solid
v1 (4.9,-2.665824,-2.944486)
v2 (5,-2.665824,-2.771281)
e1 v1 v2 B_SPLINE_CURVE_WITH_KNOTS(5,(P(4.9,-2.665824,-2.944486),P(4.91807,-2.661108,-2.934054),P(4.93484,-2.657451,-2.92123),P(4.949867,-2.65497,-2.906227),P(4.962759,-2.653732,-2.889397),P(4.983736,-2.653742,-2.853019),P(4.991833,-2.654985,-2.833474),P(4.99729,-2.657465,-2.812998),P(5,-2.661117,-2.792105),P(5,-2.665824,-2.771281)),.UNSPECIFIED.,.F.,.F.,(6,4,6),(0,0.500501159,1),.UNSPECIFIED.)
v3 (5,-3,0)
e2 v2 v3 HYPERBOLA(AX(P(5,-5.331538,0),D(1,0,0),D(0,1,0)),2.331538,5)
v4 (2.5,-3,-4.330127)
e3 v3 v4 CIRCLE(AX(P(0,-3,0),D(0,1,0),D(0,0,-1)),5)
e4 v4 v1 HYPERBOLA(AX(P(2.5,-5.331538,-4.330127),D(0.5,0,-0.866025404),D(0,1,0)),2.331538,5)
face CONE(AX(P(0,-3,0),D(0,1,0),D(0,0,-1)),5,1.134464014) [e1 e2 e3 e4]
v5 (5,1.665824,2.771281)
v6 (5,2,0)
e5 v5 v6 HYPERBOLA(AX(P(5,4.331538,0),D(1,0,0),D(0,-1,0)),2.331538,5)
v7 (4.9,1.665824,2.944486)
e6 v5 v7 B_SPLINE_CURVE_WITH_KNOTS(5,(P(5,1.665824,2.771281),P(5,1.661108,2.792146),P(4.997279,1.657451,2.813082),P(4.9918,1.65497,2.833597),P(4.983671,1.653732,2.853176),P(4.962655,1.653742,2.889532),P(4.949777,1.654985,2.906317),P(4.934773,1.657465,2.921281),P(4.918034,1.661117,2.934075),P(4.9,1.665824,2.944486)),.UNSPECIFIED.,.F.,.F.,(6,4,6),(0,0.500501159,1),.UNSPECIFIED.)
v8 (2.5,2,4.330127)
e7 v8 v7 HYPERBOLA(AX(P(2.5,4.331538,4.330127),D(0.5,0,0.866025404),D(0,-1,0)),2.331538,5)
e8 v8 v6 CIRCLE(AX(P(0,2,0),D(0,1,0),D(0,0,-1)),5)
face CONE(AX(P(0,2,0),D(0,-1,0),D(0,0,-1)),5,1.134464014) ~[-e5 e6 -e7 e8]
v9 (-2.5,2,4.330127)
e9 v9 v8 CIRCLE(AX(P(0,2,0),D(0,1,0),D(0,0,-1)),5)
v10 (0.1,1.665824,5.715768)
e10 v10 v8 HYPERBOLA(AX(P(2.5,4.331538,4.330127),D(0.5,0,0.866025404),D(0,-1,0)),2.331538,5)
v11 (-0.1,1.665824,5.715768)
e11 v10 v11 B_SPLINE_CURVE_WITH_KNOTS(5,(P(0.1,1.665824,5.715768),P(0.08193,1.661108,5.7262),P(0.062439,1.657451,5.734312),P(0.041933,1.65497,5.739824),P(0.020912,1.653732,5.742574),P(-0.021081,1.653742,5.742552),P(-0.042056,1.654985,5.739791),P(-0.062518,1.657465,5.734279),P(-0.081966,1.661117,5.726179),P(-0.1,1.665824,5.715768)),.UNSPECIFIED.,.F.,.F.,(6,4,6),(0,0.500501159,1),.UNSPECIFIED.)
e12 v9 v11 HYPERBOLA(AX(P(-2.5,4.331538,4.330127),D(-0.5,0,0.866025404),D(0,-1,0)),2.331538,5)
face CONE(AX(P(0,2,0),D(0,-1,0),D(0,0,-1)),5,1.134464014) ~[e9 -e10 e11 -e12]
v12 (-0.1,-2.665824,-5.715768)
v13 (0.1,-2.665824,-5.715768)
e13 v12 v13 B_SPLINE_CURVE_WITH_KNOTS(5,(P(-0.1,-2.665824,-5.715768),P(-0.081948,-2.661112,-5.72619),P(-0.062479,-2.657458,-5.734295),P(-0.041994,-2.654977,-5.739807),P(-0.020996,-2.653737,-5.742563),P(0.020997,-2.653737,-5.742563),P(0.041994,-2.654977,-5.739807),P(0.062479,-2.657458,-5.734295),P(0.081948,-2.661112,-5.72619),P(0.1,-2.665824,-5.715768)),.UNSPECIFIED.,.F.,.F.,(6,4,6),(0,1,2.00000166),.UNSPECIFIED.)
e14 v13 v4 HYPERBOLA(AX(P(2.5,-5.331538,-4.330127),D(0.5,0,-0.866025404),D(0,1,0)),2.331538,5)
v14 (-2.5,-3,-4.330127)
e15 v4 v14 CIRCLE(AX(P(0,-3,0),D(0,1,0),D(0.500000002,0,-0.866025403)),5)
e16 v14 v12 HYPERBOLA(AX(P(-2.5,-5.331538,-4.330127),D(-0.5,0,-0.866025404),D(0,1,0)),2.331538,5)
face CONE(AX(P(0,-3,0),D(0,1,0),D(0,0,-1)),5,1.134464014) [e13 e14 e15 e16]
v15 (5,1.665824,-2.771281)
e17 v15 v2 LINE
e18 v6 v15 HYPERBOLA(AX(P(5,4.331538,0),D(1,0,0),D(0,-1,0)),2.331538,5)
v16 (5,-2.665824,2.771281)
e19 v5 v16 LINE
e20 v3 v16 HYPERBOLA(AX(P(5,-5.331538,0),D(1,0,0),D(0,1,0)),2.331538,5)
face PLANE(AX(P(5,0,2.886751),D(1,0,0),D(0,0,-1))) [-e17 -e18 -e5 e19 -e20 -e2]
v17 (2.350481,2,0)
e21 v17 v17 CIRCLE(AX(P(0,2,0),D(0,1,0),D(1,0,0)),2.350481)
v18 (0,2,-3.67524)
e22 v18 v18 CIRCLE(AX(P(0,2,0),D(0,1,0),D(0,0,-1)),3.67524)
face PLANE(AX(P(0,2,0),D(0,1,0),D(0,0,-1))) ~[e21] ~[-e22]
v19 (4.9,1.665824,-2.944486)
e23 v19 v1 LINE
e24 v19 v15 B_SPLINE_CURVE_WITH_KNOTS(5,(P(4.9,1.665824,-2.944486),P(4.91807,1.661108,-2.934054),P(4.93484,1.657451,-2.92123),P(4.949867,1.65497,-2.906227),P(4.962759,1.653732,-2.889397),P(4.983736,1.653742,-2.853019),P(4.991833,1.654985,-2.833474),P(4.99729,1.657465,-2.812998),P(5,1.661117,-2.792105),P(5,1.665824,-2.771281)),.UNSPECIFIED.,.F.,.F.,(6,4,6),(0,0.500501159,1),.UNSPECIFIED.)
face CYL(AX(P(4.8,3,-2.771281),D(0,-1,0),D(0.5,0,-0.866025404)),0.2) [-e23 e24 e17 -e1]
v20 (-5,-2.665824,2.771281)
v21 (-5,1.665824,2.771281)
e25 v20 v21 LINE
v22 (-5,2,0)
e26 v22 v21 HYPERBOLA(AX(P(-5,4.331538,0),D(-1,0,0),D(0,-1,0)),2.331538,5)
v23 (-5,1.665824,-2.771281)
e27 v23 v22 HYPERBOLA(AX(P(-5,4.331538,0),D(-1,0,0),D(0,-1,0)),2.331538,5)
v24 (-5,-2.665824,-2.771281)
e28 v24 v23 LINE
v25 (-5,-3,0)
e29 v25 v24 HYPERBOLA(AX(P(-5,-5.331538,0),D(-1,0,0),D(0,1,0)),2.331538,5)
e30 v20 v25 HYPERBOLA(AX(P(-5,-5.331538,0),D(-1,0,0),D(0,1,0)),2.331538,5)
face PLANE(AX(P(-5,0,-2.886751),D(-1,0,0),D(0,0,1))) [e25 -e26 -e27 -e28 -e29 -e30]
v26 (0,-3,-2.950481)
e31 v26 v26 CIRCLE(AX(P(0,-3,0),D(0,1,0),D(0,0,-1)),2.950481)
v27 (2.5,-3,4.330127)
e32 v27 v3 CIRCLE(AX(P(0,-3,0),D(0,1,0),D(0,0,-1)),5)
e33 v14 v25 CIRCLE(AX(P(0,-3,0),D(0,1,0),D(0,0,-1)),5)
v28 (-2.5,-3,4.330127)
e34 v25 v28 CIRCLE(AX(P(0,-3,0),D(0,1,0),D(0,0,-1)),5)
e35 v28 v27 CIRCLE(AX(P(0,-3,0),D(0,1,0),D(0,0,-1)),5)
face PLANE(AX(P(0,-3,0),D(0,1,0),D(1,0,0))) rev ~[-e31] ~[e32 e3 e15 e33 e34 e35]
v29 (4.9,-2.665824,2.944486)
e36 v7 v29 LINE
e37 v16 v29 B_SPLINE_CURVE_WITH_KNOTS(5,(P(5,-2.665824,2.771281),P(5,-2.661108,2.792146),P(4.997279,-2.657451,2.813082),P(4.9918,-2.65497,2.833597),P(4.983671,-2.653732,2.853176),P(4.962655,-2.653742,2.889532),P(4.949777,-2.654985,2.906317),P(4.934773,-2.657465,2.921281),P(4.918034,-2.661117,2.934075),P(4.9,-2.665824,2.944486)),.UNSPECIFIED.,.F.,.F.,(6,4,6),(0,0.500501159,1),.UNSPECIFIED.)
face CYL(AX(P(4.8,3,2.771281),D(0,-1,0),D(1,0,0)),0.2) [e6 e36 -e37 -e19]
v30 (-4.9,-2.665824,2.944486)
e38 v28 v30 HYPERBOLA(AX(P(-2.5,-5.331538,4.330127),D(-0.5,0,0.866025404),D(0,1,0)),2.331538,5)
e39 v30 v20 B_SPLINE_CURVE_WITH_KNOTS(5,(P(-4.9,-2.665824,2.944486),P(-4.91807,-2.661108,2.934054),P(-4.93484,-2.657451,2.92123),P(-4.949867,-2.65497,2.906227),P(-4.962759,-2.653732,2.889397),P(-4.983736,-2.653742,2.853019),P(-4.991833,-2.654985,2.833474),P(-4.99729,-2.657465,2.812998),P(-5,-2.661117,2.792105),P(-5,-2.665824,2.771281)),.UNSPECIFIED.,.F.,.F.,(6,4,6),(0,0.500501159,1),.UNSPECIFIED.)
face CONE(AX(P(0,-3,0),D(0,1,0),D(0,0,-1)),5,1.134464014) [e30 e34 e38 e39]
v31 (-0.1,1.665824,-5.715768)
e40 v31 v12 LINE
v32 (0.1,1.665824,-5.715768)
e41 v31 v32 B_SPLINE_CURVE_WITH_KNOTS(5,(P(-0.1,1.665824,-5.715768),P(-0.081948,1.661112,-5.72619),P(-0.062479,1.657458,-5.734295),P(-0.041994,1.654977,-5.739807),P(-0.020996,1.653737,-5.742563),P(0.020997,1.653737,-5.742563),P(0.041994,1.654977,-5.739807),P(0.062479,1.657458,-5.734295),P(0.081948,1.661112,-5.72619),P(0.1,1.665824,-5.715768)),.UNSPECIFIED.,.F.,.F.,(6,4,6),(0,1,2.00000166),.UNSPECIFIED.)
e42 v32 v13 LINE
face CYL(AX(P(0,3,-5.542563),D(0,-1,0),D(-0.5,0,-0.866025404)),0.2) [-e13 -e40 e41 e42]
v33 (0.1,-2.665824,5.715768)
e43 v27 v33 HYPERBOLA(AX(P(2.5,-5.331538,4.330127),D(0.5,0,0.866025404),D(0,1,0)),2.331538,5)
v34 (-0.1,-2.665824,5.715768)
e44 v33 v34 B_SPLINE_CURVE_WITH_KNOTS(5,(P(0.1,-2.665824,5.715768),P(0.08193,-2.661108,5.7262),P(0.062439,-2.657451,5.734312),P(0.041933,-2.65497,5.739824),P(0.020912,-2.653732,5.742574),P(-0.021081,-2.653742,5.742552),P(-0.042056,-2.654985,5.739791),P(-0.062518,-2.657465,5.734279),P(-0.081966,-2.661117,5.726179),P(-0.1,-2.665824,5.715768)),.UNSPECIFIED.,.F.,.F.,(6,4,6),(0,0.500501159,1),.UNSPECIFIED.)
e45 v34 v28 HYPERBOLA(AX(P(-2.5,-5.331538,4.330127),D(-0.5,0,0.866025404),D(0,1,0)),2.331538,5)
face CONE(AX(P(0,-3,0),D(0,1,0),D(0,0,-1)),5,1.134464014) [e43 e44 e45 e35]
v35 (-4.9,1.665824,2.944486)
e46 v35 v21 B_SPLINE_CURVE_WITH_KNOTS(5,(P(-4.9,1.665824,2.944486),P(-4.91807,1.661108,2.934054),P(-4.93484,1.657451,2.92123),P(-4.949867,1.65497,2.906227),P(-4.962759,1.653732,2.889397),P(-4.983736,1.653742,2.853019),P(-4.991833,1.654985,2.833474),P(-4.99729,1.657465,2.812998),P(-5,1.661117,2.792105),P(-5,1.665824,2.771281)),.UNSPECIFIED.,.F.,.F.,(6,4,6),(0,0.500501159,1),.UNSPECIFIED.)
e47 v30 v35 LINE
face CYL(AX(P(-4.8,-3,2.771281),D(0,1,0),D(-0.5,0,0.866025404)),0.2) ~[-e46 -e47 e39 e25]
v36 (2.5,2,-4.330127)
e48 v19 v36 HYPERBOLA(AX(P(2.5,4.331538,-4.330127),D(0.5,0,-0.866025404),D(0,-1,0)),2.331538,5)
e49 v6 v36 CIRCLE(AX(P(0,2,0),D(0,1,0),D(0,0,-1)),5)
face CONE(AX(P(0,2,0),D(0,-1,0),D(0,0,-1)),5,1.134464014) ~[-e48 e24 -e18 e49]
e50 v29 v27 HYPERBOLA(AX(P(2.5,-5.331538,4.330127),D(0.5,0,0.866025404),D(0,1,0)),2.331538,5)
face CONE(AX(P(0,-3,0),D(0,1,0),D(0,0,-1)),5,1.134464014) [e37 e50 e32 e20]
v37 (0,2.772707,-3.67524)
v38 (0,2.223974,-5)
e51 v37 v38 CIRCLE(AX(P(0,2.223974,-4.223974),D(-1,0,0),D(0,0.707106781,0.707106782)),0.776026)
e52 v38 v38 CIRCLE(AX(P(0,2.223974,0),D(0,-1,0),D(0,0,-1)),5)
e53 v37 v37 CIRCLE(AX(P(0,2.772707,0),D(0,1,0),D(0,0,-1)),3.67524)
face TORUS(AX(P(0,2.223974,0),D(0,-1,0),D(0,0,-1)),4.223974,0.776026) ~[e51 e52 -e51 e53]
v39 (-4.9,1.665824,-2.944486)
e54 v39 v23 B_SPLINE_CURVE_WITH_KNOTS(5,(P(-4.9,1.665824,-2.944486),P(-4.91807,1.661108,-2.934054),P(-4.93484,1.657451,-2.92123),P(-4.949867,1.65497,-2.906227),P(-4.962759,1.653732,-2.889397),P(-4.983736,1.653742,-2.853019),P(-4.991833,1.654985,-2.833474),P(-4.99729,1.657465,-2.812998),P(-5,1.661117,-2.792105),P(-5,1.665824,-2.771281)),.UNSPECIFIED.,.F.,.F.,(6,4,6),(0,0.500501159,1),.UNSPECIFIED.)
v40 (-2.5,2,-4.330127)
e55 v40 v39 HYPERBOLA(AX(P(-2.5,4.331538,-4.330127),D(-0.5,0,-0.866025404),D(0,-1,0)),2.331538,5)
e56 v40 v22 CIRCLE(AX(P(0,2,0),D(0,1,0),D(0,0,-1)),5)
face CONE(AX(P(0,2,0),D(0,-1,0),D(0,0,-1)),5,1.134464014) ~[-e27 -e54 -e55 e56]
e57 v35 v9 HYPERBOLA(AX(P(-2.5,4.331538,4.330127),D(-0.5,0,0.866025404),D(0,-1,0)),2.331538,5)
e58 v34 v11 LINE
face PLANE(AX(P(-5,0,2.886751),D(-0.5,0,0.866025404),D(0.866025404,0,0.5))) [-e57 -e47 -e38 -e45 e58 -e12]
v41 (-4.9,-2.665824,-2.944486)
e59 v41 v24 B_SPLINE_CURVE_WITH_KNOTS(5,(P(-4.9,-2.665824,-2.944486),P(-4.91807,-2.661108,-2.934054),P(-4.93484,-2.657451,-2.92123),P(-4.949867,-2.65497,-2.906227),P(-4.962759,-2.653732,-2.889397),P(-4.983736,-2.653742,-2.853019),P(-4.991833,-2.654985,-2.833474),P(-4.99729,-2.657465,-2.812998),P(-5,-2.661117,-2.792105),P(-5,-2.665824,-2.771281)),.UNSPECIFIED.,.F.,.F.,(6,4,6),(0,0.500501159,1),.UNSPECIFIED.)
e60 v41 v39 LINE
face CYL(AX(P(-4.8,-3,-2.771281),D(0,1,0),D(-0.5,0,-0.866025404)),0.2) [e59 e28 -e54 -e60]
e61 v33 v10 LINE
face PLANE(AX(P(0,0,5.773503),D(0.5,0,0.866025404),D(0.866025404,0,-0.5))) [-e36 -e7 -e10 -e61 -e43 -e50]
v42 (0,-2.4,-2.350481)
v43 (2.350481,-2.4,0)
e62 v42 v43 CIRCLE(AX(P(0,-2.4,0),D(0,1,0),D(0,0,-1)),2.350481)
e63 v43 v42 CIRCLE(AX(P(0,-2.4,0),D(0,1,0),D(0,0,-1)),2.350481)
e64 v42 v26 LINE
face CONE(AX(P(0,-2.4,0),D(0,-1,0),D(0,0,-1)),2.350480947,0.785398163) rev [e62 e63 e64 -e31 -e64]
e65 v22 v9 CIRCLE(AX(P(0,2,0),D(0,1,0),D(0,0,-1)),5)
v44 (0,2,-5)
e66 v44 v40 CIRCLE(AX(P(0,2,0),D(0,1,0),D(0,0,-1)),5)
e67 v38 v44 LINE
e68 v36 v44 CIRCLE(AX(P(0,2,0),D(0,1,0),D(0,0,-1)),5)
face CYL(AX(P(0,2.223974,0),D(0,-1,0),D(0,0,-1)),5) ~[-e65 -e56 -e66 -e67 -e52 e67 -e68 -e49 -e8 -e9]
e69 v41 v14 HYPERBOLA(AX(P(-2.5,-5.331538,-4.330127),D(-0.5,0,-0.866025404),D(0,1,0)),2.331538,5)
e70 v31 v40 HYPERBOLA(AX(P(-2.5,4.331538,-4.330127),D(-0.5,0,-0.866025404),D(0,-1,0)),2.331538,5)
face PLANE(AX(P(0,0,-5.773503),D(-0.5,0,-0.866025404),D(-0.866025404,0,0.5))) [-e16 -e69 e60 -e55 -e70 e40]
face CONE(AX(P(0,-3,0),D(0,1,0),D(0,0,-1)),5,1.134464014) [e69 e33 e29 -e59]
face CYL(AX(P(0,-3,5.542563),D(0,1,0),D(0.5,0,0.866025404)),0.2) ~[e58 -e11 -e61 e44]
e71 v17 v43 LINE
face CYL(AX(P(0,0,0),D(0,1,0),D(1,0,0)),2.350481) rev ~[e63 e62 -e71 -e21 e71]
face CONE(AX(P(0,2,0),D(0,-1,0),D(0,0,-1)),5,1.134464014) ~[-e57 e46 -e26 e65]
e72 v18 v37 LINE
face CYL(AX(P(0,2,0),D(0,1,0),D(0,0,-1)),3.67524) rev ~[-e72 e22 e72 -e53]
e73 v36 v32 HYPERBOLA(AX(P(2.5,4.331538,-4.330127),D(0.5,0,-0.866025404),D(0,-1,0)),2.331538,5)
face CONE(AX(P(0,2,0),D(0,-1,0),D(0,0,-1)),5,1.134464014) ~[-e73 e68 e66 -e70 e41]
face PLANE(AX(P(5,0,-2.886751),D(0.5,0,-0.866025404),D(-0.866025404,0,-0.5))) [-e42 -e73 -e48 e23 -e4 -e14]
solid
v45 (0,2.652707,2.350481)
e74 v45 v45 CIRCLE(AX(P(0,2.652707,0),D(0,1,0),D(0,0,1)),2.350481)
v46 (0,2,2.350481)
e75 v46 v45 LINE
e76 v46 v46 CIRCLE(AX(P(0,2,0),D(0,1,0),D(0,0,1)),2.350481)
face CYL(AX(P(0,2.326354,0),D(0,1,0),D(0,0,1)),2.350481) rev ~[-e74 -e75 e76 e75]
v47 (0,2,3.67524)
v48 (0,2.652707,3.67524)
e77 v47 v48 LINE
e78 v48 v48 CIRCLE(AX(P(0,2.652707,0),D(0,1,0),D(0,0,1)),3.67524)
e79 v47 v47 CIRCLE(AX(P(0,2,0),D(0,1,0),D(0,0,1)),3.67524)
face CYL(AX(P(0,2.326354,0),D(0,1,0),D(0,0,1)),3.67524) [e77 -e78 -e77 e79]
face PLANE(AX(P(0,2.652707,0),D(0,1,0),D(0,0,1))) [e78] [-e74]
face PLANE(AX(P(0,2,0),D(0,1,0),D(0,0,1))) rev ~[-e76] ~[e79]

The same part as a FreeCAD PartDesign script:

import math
import FreeCAD as App
import Part
import Sketcher
from FreeCAD import Vector
Q = App.Units.Quantity


def edges_at(feature, points):
    """Names of the edges that pass closest to the given points."""
    edges = feature.Shape.Edges
    near = lambda p: min(range(len(edges)), key=lambda i: edges[i].distToShape(Part.Vertex(*p))[0])
    return sorted({f"Edge{near(p) + 1}" for p in points})

doc = App.newDocument("Part")
body = doc.addObject("PartDesign::Body", "Body")

sketch1 = body.newObject("Sketcher::SketchObject", "Sketch")
sketch1.AttachmentSupport = (doc.getObject("XZ_Plane"), [""])
sketch1.MapMode = "FlatFace"
sketch1.addGeometry([
    Part.LineSegment(Vector(0, -5.773503, 0), Vector(-5, -2.886751, 0)),
    Part.LineSegment(Vector(-5, -2.886751, 0), Vector(-5, 2.886751, 0)),
    Part.LineSegment(Vector(-5, 2.886751, 0), Vector(0, 5.773503, 0)),
    Part.LineSegment(Vector(0, 5.773503, 0), Vector(5, 2.886751, 0)),
    Part.LineSegment(Vector(5, 2.886751, 0), Vector(5, -2.886751, 0)),
    Part.LineSegment(Vector(5, -2.886751, 0), Vector(0, -5.773503, 0)),
    Part.Circle(Vector(0, 0, 0), Vector(0, 0, 1), 2.350481),
], False)
sketch1.addConstraint([
    Sketcher.Constraint("Coincident", 0, 2, 1, 1),
    Sketcher.Constraint("Coincident", 1, 2, 2, 1),
    Sketcher.Constraint("Coincident", 2, 2, 3, 1),
    Sketcher.Constraint("Coincident", 3, 2, 4, 1),
    Sketcher.Constraint("Coincident", 4, 2, 5, 1),
    Sketcher.Constraint("Coincident", 5, 2, 0, 1),
    Sketcher.Constraint("Vertical", 1),
    Sketcher.Constraint("Vertical", 4),
    Sketcher.Constraint("Coincident", 6, 3, -1, 1),
    Sketcher.Constraint("Symmetric", 0, 2, 3, 2, -1, 1),
    Sketcher.Constraint("Symmetric", 2, 2, 5, 2, -1, 1),
    Sketcher.Constraint("PointOnObject", 2, 2, -2),
    Sketcher.Constraint("Parallel", 2, 5),
    Sketcher.Constraint("Horizontal", 1, 2, 3, 2),
    Sketcher.Constraint("Angle", 0, Q("150 deg")),
    Sketcher.Constraint("DistanceX", 0, 2, -1, 1, 5.0),
    Sketcher.Constraint("Diameter", 6, 4.700962),
    Sketcher.Constraint("DistanceY", 1, 1, 1, 2, 5.773503),
])
pad1 = body.newObject("PartDesign::Pad", "Pad")
pad1.Profile = sketch1
pad1.Type = "TwoLengths"
pad1.Length = 3
pad1.Length2 = 3
pad1.Reversed = True
doc.recompute()

fillet = body.newObject("PartDesign::Fillet", "Fillet")
fillet.Base = (pad1, edges_at(pad1, [
    (5, 0, -2.887),
    (5, 0, 2.887),
    (0, 0, 5.774),
    (-5, 0, 2.887),
    (-5, 0, -2.887),
    (0, 0, -5.774),
]))
fillet.Radius = 0.2

sketch2 = body.newObject("Sketcher::SketchObject", "Sketch001")
sketch2.AttachmentSupport = (doc.getObject("YZ_Plane"), [""])
sketch2.MapMode = "FlatFace"
sketch2.addGeometry([
    Part.LineSegment(Vector(4, -5.773503, 0), Vector(4, -2.350481, 0)),
    Part.LineSegment(Vector(4, -2.350481, 0), Vector(2, -2.350481, 0)),
    Part.LineSegment(Vector(2, -2.350481, 0), Vector(2, -3.67524, 0)),
    Part.LineSegment(Vector(2, -3.67524, 0), Vector(2.772707, -3.67524, 0)),
    Part.ArcOfCircle(Part.Circle(Vector(2.223974, -4.223974, 0), Vector(0, 0, 1), 0.776026), math.radians(-90), math.radians(45)),
    Part.LineSegment(Vector(2.223974, -5, 0), Vector(2, -5, 0)),
    Part.LineSegment(Vector(2, -5, 0), Vector(1.63931, -5.773503, 0)),
    Part.LineSegment(Vector(1.63931, -5.773503, 0), Vector(4, -5.773503, 0)),
    Part.LineSegment(Vector(-2.63931, -5.773503, 0), Vector(-3, -5, 0)),
    Part.LineSegment(Vector(-3, -5, 0), Vector(-3, -5.773503, 0)),
    Part.LineSegment(Vector(-3, -5.773503, 0), Vector(-2.63931, -5.773503, 0)),
    Part.LineSegment(Vector(-2.4, -2.350481, 0), Vector(-3, -2.350481, 0)),
    Part.LineSegment(Vector(-3, -2.350481, 0), Vector(-3, -2.950481, 0)),
    Part.LineSegment(Vector(-3, -2.950481, 0), Vector(-2.4, -2.350481, 0)),
], False)
sketch2.addConstraint([
    Sketcher.Constraint("Coincident", 0, 2, 1, 1),
    Sketcher.Constraint("Coincident", 1, 2, 2, 1),
    Sketcher.Constraint("Coincident", 2, 2, 3, 1),
    Sketcher.Constraint("Coincident", 3, 2, 4, 2),
    Sketcher.Constraint("Tangent", 4, 1, 5, 1),
    Sketcher.Constraint("Coincident", 5, 2, 6, 1),
    Sketcher.Constraint("Coincident", 6, 2, 7, 1),
    Sketcher.Constraint("Coincident", 7, 2, 0, 1),
    Sketcher.Constraint("Coincident", 8, 2, 9, 1),
    Sketcher.Constraint("Coincident", 9, 2, 10, 1),
    Sketcher.Constraint("Coincident", 10, 2, 8, 1),
    Sketcher.Constraint("Coincident", 11, 2, 12, 1),
    Sketcher.Constraint("Coincident", 12, 2, 13, 1),
    Sketcher.Constraint("Coincident", 13, 2, 11, 1),
    Sketcher.Constraint("Vertical", 0),
    Sketcher.Constraint("Horizontal", 1),
    Sketcher.Constraint("Vertical", 2),
    Sketcher.Constraint("Horizontal", 3),
    Sketcher.Constraint("Horizontal", 5),
    Sketcher.Constraint("Horizontal", 7),
    Sketcher.Constraint("Vertical", 9),
    Sketcher.Constraint("Horizontal", 10),
    Sketcher.Constraint("Horizontal", 11),
    Sketcher.Constraint("Vertical", 12),
    Sketcher.Constraint("Horizontal", 5, 2, 8, 2),
    Sketcher.Constraint("Horizontal", 7, 2, 9, 2),
    Sketcher.Constraint("Horizontal", 1, 2, 11, 2),
    Sketcher.Constraint("Vertical", 2, 2, 5, 2),
    Sketcher.Constraint("Vertical", 9, 2, 11, 2),
    Sketcher.Constraint("Equal", 11, 12),
    Sketcher.Constraint("Equal", 6, 8),
    Sketcher.Constraint("DistanceX", 1, 2, 1, 1, 2.0),
    Sketcher.Constraint("Angle", 6, Q("-115 deg")),
    Sketcher.Constraint("DistanceX", 11, 2, 11, 1, 0.6),
    Sketcher.Constraint("DistanceX", -1, 1, 0, 2, 4.0),
    Sketcher.Constraint("DistanceY", 4, 1, -1, 1, 5.0),
    Sketcher.Constraint("DistanceX", 8, 2, -1, 1, 3.0),
    Sketcher.Constraint("Radius", 4, 0.776026),
    Sketcher.Constraint("DistanceX", 7, 1, 7, 2, 2.36069),
    Sketcher.Constraint("DistanceY", 0, 1, 0, 2, 3.423022),
    Sketcher.Constraint("DistanceY", 2, 2, 2, 1, 1.32476),
    Sketcher.Constraint("DistanceX", 3, 1, 3, 2, 0.772707),
])
groove = body.newObject("PartDesign::Groove", "Groove")
groove.Profile = sketch2
groove.ReferenceAxis = (sketch2, ["H_Axis"])
groove.Angle = 360
body2 = doc.addObject("PartDesign::Body", "Body001")

sketch3 = body2.newObject("Sketcher::SketchObject", "Sketch002")
sketch3.AttachmentSupport = (doc.getObject("YZ_Plane001"), [""])
sketch3.MapMode = "FlatFace"
sketch3.addGeometry([
    Part.LineSegment(Vector(2.652707, 3.67524, 0), Vector(2, 3.67524, 0)),
    Part.LineSegment(Vector(2, 3.67524, 0), Vector(2, 2.350481, 0)),
    Part.LineSegment(Vector(2, 2.350481, 0), Vector(2.652707, 2.350481, 0)),
    Part.LineSegment(Vector(2.652707, 2.350481, 0), Vector(2.652707, 3.67524, 0)),
], False)
sketch3.addConstraint([
    Sketcher.Constraint("Coincident", 0, 2, 1, 1),
    Sketcher.Constraint("Coincident", 1, 2, 2, 1),
    Sketcher.Constraint("Coincident", 2, 2, 3, 1),
    Sketcher.Constraint("Coincident", 3, 2, 0, 1),
    Sketcher.Constraint("Horizontal", 0),
    Sketcher.Constraint("Vertical", 1),
    Sketcher.Constraint("Horizontal", 2),
    Sketcher.Constraint("Vertical", 3),
    Sketcher.Constraint("DistanceX", -1, 1, 0, 2, 2.0),
    Sketcher.Constraint("DistanceY", 1, 2, 1, 1, 1.32476),
    Sketcher.Constraint("DistanceX", 0, 2, 0, 1, 0.652707),
    Sketcher.Constraint("DistanceY", -1, 1, 0, 2, 3.67524),
])
revolution = body2.newObject("PartDesign::Revolution", "Revolution")
revolution.Profile = sketch3
revolution.ReferenceAxis = (sketch3, ["H_Axis"])
revolution.Angle = 360

doc.recompute()
